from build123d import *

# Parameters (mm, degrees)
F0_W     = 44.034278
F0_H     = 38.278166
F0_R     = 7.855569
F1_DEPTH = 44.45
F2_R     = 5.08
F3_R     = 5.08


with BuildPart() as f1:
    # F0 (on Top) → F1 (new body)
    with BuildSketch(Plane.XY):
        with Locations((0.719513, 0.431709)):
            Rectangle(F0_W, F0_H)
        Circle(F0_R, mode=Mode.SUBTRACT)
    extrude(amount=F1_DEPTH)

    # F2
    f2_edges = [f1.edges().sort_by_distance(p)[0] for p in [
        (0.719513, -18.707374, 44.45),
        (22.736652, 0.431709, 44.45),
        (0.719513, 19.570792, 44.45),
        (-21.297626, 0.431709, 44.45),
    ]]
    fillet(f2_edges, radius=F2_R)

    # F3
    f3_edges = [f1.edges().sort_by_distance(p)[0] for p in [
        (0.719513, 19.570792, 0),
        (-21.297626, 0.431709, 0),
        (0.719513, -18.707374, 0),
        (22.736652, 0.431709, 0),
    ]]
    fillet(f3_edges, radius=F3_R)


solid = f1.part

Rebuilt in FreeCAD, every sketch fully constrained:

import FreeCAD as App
import Part
import Sketcher
from FreeCAD import Vector
Q = App.Units.Quantity


def edges_at(feature, points):
    """Names of the edges that pass closest to the given points."""
    edges = feature.Shape.Edges
    near = lambda p: min(range(len(edges)), key=lambda i: edges[i].distToShape(Part.Vertex(*p))[0])
    return sorted({f"Edge{near(p) + 1}" for p in points})

doc = App.newDocument("Part")
params = doc.addObject("Spreadsheet::Sheet", "Params")
for row, (alias, value) in enumerate([
    ("pad1_length", "1.75 in"),
    ("fillet_radius", "0.2 in"),
    ("fillet2_radius", "0.2 in"),
], start=1):
    params.set(f"A{row}", alias)
    params.set(f"B{row}", "=" + value)
    params.setAlias(f"B{row}", alias)

body = doc.addObject("PartDesign::Body", "Body")

sketch1 = doc.addObject("Sketcher::SketchObject", "Sketch")
body.addObject(sketch1)
sketch1.AttachmentSupport = (doc.XY_Plane, [""])
sketch1.MapMode = "FlatFace"
sketch1.addGeometry([
    Part.LineSegment(Vector(-21, 20, 0), Vector(-21, -19, 0)),
    Part.LineSegment(Vector(-21, -19, 0), Vector(23, -19, 0)),
    Part.LineSegment(Vector(23, -19, 0), Vector(23, 20, 0)),
    Part.LineSegment(Vector(23, 20, 0), Vector(-21, 20, 0)),
    Part.Circle(Vector(0, 0, 0), Vector(0, 0, 1), 8),
], False)
sketch1.addConstraint([
    Sketcher.Constraint("Coincident", 0, 2, 1, 1),
    Sketcher.Constraint("Coincident", 1, 2, 2, 1),
    Sketcher.Constraint("Coincident", 2, 2, 3, 1),
    Sketcher.Constraint("Coincident", 3, 2, 0, 1),
    Sketcher.Constraint("Vertical", 0),
    Sketcher.Constraint("Horizontal", 1),
    Sketcher.Constraint("Vertical", 2),
    Sketcher.Constraint("Horizontal", 3),
    Sketcher.Constraint("Coincident", 4, 3, -1, 1),
    Sketcher.Constraint("Diameter", 4, Q("15.711138 mm")),
    Sketcher.Constraint("DistanceX", 1, 1, 1, 2, Q("44.034278 mm")),
    Sketcher.Constraint("DistanceY", 0, 2, 0, 1, Q("38.278166 mm")),
    Sketcher.Constraint("DistanceX", -1, 1, 1, 2, Q("22.736652 mm")),
    Sketcher.Constraint("DistanceY", 0, 2, -1, 1, Q("18.707374 mm")),
])
pad1 = doc.addObject("PartDesign::Pad", "Pad")
body.addObject(pad1)
pad1.Profile = sketch1
pad1.setExpression("Length", "Params.pad1_length")
doc.recompute()

fillet = doc.addObject("PartDesign::Fillet", "Fillet")
body.addObject(fillet)
fillet.Base = (pad1, edges_at(pad1, [
    (0.72, -18.707, 44.45),
    (22.737, 0.432, 44.45),
    (0.72, 19.571, 44.45),
    (-21.298, 0.432, 44.45),
]))
fillet.setExpression("Radius", "Params.fillet_radius")
doc.recompute()

fillet2 = doc.addObject("PartDesign::Fillet", "Fillet001")
body.addObject(fillet2)
fillet2.Base = (fillet, edges_at(fillet, [
    (0.72, 19.571, 0),
    (-21.298, 0.432, 0),
    (0.72, -18.707, 0),
    (22.737, 0.432, 0),
]))
fillet2.setExpression("Radius", "Params.fillet2_radius")

doc.recompute()
